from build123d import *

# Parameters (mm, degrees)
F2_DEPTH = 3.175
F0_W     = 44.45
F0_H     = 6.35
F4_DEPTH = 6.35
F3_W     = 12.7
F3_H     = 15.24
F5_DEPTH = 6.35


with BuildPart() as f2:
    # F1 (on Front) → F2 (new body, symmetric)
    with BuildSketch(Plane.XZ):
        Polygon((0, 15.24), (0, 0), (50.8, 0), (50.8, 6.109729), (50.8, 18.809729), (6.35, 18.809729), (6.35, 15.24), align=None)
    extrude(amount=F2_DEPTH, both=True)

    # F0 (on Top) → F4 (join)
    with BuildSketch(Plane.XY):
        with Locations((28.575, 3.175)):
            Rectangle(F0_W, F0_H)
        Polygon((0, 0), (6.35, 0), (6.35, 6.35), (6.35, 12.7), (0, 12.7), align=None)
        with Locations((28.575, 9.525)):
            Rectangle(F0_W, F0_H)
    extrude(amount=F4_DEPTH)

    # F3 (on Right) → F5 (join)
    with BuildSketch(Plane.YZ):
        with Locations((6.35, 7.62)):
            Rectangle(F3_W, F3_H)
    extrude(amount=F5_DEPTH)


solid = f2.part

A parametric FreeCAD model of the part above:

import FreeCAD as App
import Part
import Sketcher
Q = App.Units.Quantity

doc = App.newDocument("Part")
body = doc.addObject("PartDesign::Body", "Body")

# Sketch on XZ plane
sketch1 = body.newObject("Sketcher::SketchObject", "Sketch")
sketch1.AttachmentSupport = (doc.getObject("XZ_Plane"), [""])
sketch1.MapMode = "FlatFace"
sketch1.addGeometry([
    Part.LineSegment(App.Vector(0, 15.2, 0), App.Vector(0, 0, 0)),  # 0
    Part.LineSegment(App.Vector(0, 0, 0), App.Vector(50.8, 0, 0)),  # 1
    Part.LineSegment(App.Vector(50.8, 0, 0), App.Vector(50.8, 18.8, 0)),  # 2
    Part.LineSegment(App.Vector(50.8, 18.8, 0), App.Vector(6.3, 18.8, 0)),  # 3
    Part.LineSegment(App.Vector(6.3, 18.8, 0), App.Vector(6.3, 15.2, 0)),  # 4
    Part.LineSegment(App.Vector(6.3, 15.2, 0), App.Vector(0, 15.2, 0)),  # 5
], False)
sketch1.addConstraint([
    Sketcher.Constraint("Coincident", 0, 2, 1, 1),
    Sketcher.Constraint("Coincident", 1, 2, 2, 1),
    Sketcher.Constraint("Coincident", 2, 2, 3, 1),
    Sketcher.Constraint("Coincident", 3, 2, 4, 1),
    Sketcher.Constraint("Coincident", 4, 2, 5, 1),
    Sketcher.Constraint("Coincident", 5, 2, 0, 1),
    Sketcher.Constraint("Vertical", 0),
    Sketcher.Constraint("Horizontal", 1),
    Sketcher.Constraint("Vertical", 2),
    Sketcher.Constraint("Horizontal", 3),
    Sketcher.Constraint("Vertical", 4),
    Sketcher.Constraint("Horizontal", 5),
    Sketcher.Constraint("Coincident", 0, 2, -1, 1),
    Sketcher.Constraint("DistanceX", 1, 1, 1, 2, Q("2 in")),
    Sketcher.Constraint("DistanceY", 0, 2, 0, 1, Q("0.6 in")),
    Sketcher.Constraint("DistanceX", 3, 2, 3, 1, Q("1.75 in")),
    Sketcher.Constraint("DistanceY", 2, 1, 2, 2, 18.809729),
])
pad1 = body.newObject("PartDesign::Pad", "Pad")
pad1.Profile = sketch1
pad1.Length = Q("0.25 in")
pad1.Midplane = True

# Sketch on XY plane
sketch2 = body.newObject("Sketcher::SketchObject", "Sketch001")
sketch2.AttachmentSupport = (doc.getObject("XY_Plane"), [""])
sketch2.MapMode = "FlatFace"
sketch2.addGeometry([
    Part.LineSegment(App.Vector(51, 0, 0), App.Vector(51, 13, 0)),
    Part.LineSegment(App.Vector(51, 13, 0), App.Vector(0, 13, 0)),
    Part.LineSegment(App.Vector(0, 13, 0), App.Vector(0, 0, 0)),
    Part.LineSegment(App.Vector(0, 0, 0), App.Vector(51, 0, 0)),
], False)
sketch2.addConstraint([
    Sketcher.Constraint("Coincident", 0, 2, 1, 1),
    Sketcher.Constraint("Coincident", 1, 2, 2, 1),
    Sketcher.Constraint("Coincident", 2, 2, 3, 1),
    Sketcher.Constraint("Coincident", 3, 2, 0, 1),
    Sketcher.Constraint("Vertical", 0),
    Sketcher.Constraint("Horizontal", 1),
    Sketcher.Constraint("Vertical", 2),
    Sketcher.Constraint("Horizontal", 3),
    Sketcher.Constraint("Coincident", 2, 2, -1, 1),
    Sketcher.Constraint("DistanceX", 1, 2, 1, 1, Q("2 in")),
    Sketcher.Constraint("DistanceY", 0, 1, 0, 2, Q("0.5 in")),
])
pad2 = body.newObject("PartDesign::Pad", "Pad001")
pad2.Profile = sketch2
pad2.Length = Q("0.25 in")

# Sketch on YZ plane
sketch3 = body.newObject("Sketcher::SketchObject", "Sketch002")
sketch3.AttachmentSupport = (doc.getObject("YZ_Plane"), [""])
sketch3.MapMode = "FlatFace"
sketch3.addGeometry([
    Part.LineSegment(App.Vector(0, 15, 0), App.Vector(0, 0, 0)),
    Part.LineSegment(App.Vector(0, 0, 0), App.Vector(13, 0, 0)),
    Part.LineSegment(App.Vector(13, 0, 0), App.Vector(13, 15, 0)),
    Part.LineSegment(App.Vector(13, 15, 0), App.Vector(0, 15, 0)),
], False)
sketch3.addConstraint([
    Sketcher.Constraint("Coincident", 0, 2, 1, 1),
    Sketcher.Constraint("Coincident", 1, 2, 2, 1),
    Sketcher.Constraint("Coincident", 2, 2, 3, 1),
    Sketcher.Constraint("Coincident", 3, 2, 0, 1),
    Sketcher.Constraint("Vertical", 0),
    Sketcher.Constraint("Horizontal", 1),
    Sketcher.Constraint("Vertical", 2),
    Sketcher.Constraint("Horizontal", 3),
    Sketcher.Constraint("Coincident", 0, 2, -1, 1),
    Sketcher.Constraint("DistanceX", 1, 1, 1, 2, Q("0.5 in")),
    Sketcher.Constraint("DistanceY", 0, 2, 0, 1, Q("0.6 in")),
])
pad3 = body.newObject("PartDesign::Pad", "Pad002")
pad3.Profile = sketch3
pad3.Length = Q("0.25 in")

doc.recompute()
